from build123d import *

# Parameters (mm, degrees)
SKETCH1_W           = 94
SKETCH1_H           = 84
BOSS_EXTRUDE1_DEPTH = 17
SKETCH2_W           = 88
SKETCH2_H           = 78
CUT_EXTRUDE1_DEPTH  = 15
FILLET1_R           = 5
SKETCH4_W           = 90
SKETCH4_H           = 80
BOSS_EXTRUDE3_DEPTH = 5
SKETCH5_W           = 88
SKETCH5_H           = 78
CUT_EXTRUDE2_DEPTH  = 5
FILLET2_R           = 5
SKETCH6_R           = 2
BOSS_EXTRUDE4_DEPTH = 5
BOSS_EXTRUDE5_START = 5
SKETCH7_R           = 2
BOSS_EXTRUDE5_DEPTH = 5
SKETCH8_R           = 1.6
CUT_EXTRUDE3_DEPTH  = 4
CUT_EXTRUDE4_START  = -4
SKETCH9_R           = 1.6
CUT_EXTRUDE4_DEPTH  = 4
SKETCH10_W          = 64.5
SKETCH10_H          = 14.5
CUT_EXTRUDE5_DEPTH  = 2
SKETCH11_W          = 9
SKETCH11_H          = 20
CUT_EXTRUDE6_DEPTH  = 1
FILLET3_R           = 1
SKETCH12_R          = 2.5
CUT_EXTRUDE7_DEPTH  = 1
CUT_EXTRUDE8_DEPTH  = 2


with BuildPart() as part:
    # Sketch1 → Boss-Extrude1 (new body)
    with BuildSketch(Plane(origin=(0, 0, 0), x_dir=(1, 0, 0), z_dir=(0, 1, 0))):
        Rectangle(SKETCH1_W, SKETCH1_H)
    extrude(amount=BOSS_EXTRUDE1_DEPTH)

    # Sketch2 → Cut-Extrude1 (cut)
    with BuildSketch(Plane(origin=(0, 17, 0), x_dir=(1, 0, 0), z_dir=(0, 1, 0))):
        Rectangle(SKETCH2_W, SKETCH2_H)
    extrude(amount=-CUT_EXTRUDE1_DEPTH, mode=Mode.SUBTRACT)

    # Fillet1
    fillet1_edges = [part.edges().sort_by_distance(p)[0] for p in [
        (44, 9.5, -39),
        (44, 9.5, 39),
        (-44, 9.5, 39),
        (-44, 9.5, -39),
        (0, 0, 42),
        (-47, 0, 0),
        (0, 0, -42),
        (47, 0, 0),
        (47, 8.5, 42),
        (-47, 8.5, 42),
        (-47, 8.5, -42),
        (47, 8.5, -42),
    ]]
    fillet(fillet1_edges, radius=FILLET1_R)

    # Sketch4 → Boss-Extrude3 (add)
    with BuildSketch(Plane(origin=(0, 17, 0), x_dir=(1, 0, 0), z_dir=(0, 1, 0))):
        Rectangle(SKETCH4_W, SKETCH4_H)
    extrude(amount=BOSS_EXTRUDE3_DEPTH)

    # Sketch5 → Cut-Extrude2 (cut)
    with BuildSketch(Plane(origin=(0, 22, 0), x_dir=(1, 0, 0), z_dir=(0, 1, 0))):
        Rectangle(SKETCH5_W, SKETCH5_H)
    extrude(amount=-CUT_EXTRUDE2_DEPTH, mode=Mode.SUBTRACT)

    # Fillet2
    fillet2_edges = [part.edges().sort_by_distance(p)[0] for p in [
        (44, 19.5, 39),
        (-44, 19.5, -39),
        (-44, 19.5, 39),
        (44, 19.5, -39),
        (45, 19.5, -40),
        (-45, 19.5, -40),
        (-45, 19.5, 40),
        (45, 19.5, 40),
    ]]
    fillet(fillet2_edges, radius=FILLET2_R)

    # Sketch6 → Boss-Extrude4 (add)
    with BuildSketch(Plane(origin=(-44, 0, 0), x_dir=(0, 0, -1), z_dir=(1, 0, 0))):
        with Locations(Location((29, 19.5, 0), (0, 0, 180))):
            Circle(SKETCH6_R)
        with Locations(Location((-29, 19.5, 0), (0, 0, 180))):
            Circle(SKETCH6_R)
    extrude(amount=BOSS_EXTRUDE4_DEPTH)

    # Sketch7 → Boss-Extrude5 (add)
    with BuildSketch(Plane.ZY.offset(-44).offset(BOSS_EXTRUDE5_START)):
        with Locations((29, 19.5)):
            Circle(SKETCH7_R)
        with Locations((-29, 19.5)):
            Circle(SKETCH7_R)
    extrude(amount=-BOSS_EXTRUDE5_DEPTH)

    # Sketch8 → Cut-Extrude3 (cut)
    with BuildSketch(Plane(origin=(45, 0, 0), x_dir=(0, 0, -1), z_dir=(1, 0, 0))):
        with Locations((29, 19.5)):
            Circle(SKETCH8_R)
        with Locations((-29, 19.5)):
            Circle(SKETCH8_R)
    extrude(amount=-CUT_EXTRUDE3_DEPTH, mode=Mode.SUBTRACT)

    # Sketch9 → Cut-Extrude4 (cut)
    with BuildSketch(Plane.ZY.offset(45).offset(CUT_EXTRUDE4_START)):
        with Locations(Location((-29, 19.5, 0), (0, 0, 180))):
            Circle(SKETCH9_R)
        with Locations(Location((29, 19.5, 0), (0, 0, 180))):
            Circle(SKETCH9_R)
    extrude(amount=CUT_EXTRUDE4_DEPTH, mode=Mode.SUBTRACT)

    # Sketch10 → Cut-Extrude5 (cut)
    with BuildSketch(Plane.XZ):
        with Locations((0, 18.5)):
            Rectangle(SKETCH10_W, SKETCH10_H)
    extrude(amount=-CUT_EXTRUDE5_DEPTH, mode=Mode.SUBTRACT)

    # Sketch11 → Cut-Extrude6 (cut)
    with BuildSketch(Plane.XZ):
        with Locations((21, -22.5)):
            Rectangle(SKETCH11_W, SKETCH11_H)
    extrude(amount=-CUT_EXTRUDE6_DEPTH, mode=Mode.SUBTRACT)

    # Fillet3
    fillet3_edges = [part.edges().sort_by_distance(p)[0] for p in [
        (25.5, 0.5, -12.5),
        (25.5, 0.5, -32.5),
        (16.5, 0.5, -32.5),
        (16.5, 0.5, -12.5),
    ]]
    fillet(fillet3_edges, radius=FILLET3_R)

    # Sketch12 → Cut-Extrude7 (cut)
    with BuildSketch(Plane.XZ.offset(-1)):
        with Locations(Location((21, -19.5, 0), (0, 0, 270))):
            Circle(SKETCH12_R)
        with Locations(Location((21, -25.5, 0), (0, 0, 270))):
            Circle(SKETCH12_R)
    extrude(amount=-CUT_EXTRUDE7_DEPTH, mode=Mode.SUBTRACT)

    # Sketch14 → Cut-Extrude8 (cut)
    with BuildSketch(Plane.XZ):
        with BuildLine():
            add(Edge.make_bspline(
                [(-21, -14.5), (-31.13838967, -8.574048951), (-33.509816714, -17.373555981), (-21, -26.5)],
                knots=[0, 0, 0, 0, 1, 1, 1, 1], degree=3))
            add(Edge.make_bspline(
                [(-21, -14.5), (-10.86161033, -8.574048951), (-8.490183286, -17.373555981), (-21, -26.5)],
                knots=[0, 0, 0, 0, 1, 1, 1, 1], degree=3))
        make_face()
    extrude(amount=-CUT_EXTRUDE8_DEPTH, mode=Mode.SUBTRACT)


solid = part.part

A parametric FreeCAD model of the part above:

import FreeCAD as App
import Part
import Sketcher
from FreeCAD import Vector
Q = App.Units.Quantity


def edges_at(feature, points):
    """Names of the edges that pass closest to the given points."""
    edges = feature.Shape.Edges
    near = lambda p: min(range(len(edges)), key=lambda i: edges[i].distToShape(Part.Vertex(*p))[0])
    return sorted({f"Edge{near(p) + 1}" for p in points})


def add_polygon(sketch, points):
    """Adds a closed chain of lines whose ends are joined by coincident constraints."""
    first, n = sketch.GeometryCount, len(points)
    for a, b in zip(points, points[1:] + points[:1]):
        sketch.addGeometry(Part.LineSegment(App.Vector(*a, 0), App.Vector(*b, 0)), False)
    for i in range(n):
        sketch.addConstraint(Sketcher.Constraint("Coincident", first + i, 2, first + (i + 1) % n, 1))

doc = App.newDocument("Part")
params = doc.addObject("Spreadsheet::Sheet", "Params")
for row, (alias, value) in enumerate([
    ("sketch1_width", "94 mm"),
    ("sketch1_height", "84 mm"),
    ("pad1_length", "17 mm"),
    ("sketch2_width", "88 mm"),
    ("sketch2_height", "78 mm"),
    ("pocket1_length", "15 mm"),
    ("fillet_radius", "5 mm"),
    ("sketch3_width", "90 mm"),
    ("sketch3_height", "80 mm"),
    ("pad2_length", "5 mm"),
    ("sketch4_width", "88 mm"),
    ("sketch4_height", "78 mm"),
    ("pocket2_length", "5 mm"),
    ("fillet2_radius", "5 mm"),
    ("sketch5_diameter", "4 mm"),
    ("pad3_length", "5 mm"),
    ("sketch6_diameter", "4 mm"),
    ("pad4_length", "5 mm"),
    ("sketch7_diameter", "3.2 mm"),
    ("pocket3_length", "4 mm"),
    ("sketch8_diameter", "3.2 mm"),
    ("pocket4_length", "4 mm"),
    ("sketch9_width", "64.5 mm"),
    ("sketch9_height", "14.5 mm"),
    ("pocket5_length", "2 mm"),
    ("sketch10_width", "9 mm"),
    ("sketch10_height", "20 mm"),
    ("pocket6_length", "1 mm"),
    ("fillet3_radius", "1 mm"),
    ("sketch11_diameter", "5 mm"),
    ("pocket7_length", "1 mm"),
    ("pocket8_length", "2 mm"),
], start=1):
    params.set(f"A{row}", alias)
    params.set(f"B{row}", "=" + value)
    params.setAlias(f"B{row}", alias)

body = doc.addObject("PartDesign::Body", "Body")

sketch1 = body.newObject("Sketcher::SketchObject", "Sketch")
sketch1.AttachmentSupport = (doc.getObject("XZ_Plane"), [""])
sketch1.MapMode = "FlatFace"
add_polygon(sketch1, [(-47, -42), (-47, 42), (47, 42), (47, -42)])
sketch1.addConstraint(Sketcher.Constraint("Vertical", 0))
sketch1.addConstraint(Sketcher.Constraint("Horizontal", 1))
sketch1.addConstraint(Sketcher.Constraint("Vertical", 2))
sketch1.addConstraint(Sketcher.Constraint("Horizontal", 3))
sketch1.addConstraint(Sketcher.Constraint("Symmetric", 0, 2, 2, 2, -1, 1))
sketch1.addConstraint(Sketcher.Constraint("DistanceX", 1, 1, 1, 2, Q("94 mm")))
sketch1.addConstraint(Sketcher.Constraint("DistanceY", 0, 1, 0, 2, Q("84 mm")))
sketch1.setExpression("Constraints[9]", "Params.sketch1_width")
sketch1.setExpression("Constraints[10]", "Params.sketch1_height")
pad1 = body.newObject("PartDesign::Pad", "Pad")
pad1.Profile = sketch1
pad1.setExpression("Length", "Params.pad1_length")
pad1.Reversed = True

sketch2 = body.newObject("Sketcher::SketchObject", "Sketch001")
sketch2.AttachmentSupport = (doc.getObject("XZ_Plane"), [""])
sketch2.MapMode = "FlatFace"
sketch2.AttachmentOffset = App.Placement(Vector(0, 0, -17), App.Rotation())
add_polygon(sketch2, [(-44, -39), (-44, 39), (44, 39), (44, -39)])
sketch2.addConstraint(Sketcher.Constraint("Vertical", 0))
sketch2.addConstraint(Sketcher.Constraint("Horizontal", 1))
sketch2.addConstraint(Sketcher.Constraint("Vertical", 2))
sketch2.addConstraint(Sketcher.Constraint("Horizontal", 3))
sketch2.addConstraint(Sketcher.Constraint("Symmetric", 0, 2, 2, 2, -1, 1))
sketch2.addConstraint(Sketcher.Constraint("DistanceX", 1, 1, 1, 2, Q("88 mm")))
sketch2.addConstraint(Sketcher.Constraint("DistanceY", 0, 1, 0, 2, Q("78 mm")))
sketch2.setExpression("Constraints[9]", "Params.sketch2_width")
sketch2.setExpression("Constraints[10]", "Params.sketch2_height")
pocket1 = body.newObject("PartDesign::Pocket", "Pocket")
pocket1.Profile = sketch2
pocket1.setExpression("Length", "Params.pocket1_length")
pocket1.Reversed = True
doc.recompute()

fillet = body.newObject("PartDesign::Fillet", "Fillet")
fillet.Base = (pocket1, edges_at(pocket1, [
    (44, 9.5, -39),
    (44, 9.5, 39),
    (-44, 9.5, 39),
    (-44, 9.5, -39),
    (0, 0, 42),
    (-47, 0, 0),
    (0, 0, -42),
    (47, 0, 0),
    (47, 8.5, 42),
    (-47, 8.5, 42),
    (-47, 8.5, -42),
    (47, 8.5, -42),
]))
fillet.setExpression("Radius", "Params.fillet_radius")

sketch3 = body.newObject("Sketcher::SketchObject", "Sketch002")
sketch3.AttachmentSupport = (doc.getObject("XZ_Plane"), [""])
sketch3.MapMode = "FlatFace"
sketch3.AttachmentOffset = App.Placement(Vector(0, 0, -17), App.Rotation())
add_polygon(sketch3, [(-45, -40), (-45, 40), (45, 40), (45, -40)])
sketch3.addConstraint(Sketcher.Constraint("Vertical", 0))
sketch3.addConstraint(Sketcher.Constraint("Horizontal", 1))
sketch3.addConstraint(Sketcher.Constraint("Vertical", 2))
sketch3.addConstraint(Sketcher.Constraint("Horizontal", 3))
sketch3.addConstraint(Sketcher.Constraint("Symmetric", 0, 2, 2, 2, -1, 1))
sketch3.addConstraint(Sketcher.Constraint("DistanceX", 1, 1, 1, 2, Q("90 mm")))
sketch3.addConstraint(Sketcher.Constraint("DistanceY", 0, 1, 0, 2, Q("80 mm")))
sketch3.setExpression("Constraints[9]", "Params.sketch3_width")
sketch3.setExpression("Constraints[10]", "Params.sketch3_height")
pad2 = body.newObject("PartDesign::Pad", "Pad001")
pad2.Profile = sketch3
pad2.setExpression("Length", "Params.pad2_length")
pad2.Reversed = True

sketch4 = body.newObject("Sketcher::SketchObject", "Sketch003")
sketch4.AttachmentSupport = (doc.getObject("XZ_Plane"), [""])
sketch4.MapMode = "FlatFace"
sketch4.AttachmentOffset = App.Placement(Vector(0, 0, -22), App.Rotation())
add_polygon(sketch4, [(-44, -39), (-44, 39), (44, 39), (44, -39)])
sketch4.addConstraint(Sketcher.Constraint("Vertical", 0))
sketch4.addConstraint(Sketcher.Constraint("Horizontal", 1))
sketch4.addConstraint(Sketcher.Constraint("Vertical", 2))
sketch4.addConstraint(Sketcher.Constraint("Horizontal", 3))
sketch4.addConstraint(Sketcher.Constraint("Symmetric", 0, 2, 2, 2, -1, 1))
sketch4.addConstraint(Sketcher.Constraint("DistanceX", 1, 1, 1, 2, Q("88 mm")))
sketch4.addConstraint(Sketcher.Constraint("DistanceY", 0, 1, 0, 2, Q("78 mm")))
sketch4.setExpression("Constraints[9]", "Params.sketch4_width")
sketch4.setExpression("Constraints[10]", "Params.sketch4_height")
pocket2 = body.newObject("PartDesign::Pocket", "Pocket001")
pocket2.Profile = sketch4
pocket2.setExpression("Length", "Params.pocket2_length")
pocket2.Reversed = True
doc.recompute()

fillet2 = body.newObject("PartDesign::Fillet", "Fillet001")
fillet2.Base = (pocket2, edges_at(pocket2, [
    (44, 19.5, 39),
    (-44, 19.5, -39),
    (-44, 19.5, 39),
    (44, 19.5, -39),
    (45, 19.5, -40),
    (-45, 19.5, -40),
    (-45, 19.5, 40),
    (45, 19.5, 40),
]))
fillet2.setExpression("Radius", "Params.fillet2_radius")

sketch5 = body.newObject("Sketcher::SketchObject", "Sketch004")
sketch5.AttachmentSupport = (doc.getObject("YZ_Plane"), [""])
sketch5.MapMode = "FlatFace"
sketch5.AttachmentOffset = App.Placement(Vector(0, 0, -44), App.Rotation())
sketch5.addGeometry(Part.Circle(Vector(19.5, -29, 0), Vector(0, 0, 1), 2), False)
sketch5.addGeometry(Part.Circle(Vector(19.5, 29, 0), Vector(0, 0, 1), 2), False)
sketch5.addConstraint(Sketcher.Constraint("Equal", 0, 1))
sketch5.addConstraint(Sketcher.Constraint("Symmetric", 0, 3, 1, 3, -1))
sketch5.addConstraint(Sketcher.Constraint("Diameter", 0, Q("4 mm")))
sketch5.addConstraint(Sketcher.Constraint("DistanceY", 0, 3, -1, 1, Q("29 mm")))
sketch5.addConstraint(Sketcher.Constraint("DistanceX", -1, 1, 0, 3, Q("19.5 mm")))
sketch5.setExpression("Constraints[2]", "Params.sketch5_diameter")
pad3 = body.newObject("PartDesign::Pad", "Pad002")
pad3.Profile = sketch5
pad3.setExpression("Length", "Params.pad3_length")

sketch6 = body.newObject("Sketcher::SketchObject", "Sketch005")
sketch6.AttachmentSupport = (doc.getObject("YZ_Plane"), [""])
sketch6.MapMode = "FlatFace"
sketch6.AttachmentOffset = App.Placement(Vector(0, 0, 39), App.Rotation())
sketch6.addGeometry(Part.Circle(Vector(19.5, 29, 0), Vector(0, 0, 1), 2), False)
sketch6.addGeometry(Part.Circle(Vector(19.5, -29, 0), Vector(0, 0, 1), 2), False)
sketch6.addConstraint(Sketcher.Constraint("Equal", 0, 1))
sketch6.addConstraint(Sketcher.Constraint("Symmetric", 0, 3, 1, 3, -1))
sketch6.addConstraint(Sketcher.Constraint("Diameter", 0, Q("4 mm")))
sketch6.addConstraint(Sketcher.Constraint("DistanceY", -1, 1, 0, 3, Q("29 mm")))
sketch6.addConstraint(Sketcher.Constraint("DistanceX", -1, 1, 0, 3, Q("19.5 mm")))
sketch6.setExpression("Constraints[2]", "Params.sketch6_diameter")
pad4 = body.newObject("PartDesign::Pad", "Pad003")
pad4.Profile = sketch6
pad4.setExpression("Length", "Params.pad4_length")

sketch7 = body.newObject("Sketcher::SketchObject", "Sketch006")
sketch7.AttachmentSupport = (doc.getObject("YZ_Plane"), [""])
sketch7.MapMode = "FlatFace"
sketch7.AttachmentOffset = App.Placement(Vector(0, 0, 45), App.Rotation())
sketch7.addGeometry(Part.Circle(Vector(19.5, -29, 0), Vector(0, 0, 1), 1.6), False)
sketch7.addGeometry(Part.Circle(Vector(19.5, 29, 0), Vector(0, 0, 1), 1.6), False)
sketch7.addConstraint(Sketcher.Constraint("Equal", 0, 1))
sketch7.addConstraint(Sketcher.Constraint("Symmetric", 0, 3, 1, 3, -1))
sketch7.addConstraint(Sketcher.Constraint("Diameter", 0, Q("3.2 mm")))
sketch7.addConstraint(Sketcher.Constraint("DistanceY", 0, 3, -1, 1, Q("29 mm")))
sketch7.addConstraint(Sketcher.Constraint("DistanceX", -1, 1, 0, 3, Q("19.5 mm")))
sketch7.setExpression("Constraints[2]", "Params.sketch7_diameter")
pocket3 = body.newObject("PartDesign::Pocket", "Pocket002")
pocket3.Profile = sketch7
pocket3.setExpression("Length", "Params.pocket3_length")

sketch8 = body.newObject("Sketcher::SketchObject", "Sketch007")
sketch8.AttachmentSupport = (doc.getObject("YZ_Plane"), [""])
sketch8.MapMode = "FlatFace"
sketch8.AttachmentOffset = App.Placement(Vector(0, 0, -41), App.Rotation())
sketch8.addGeometry(Part.Circle(Vector(19.5, -29, 0), Vector(0, 0, 1), 1.6), False)
sketch8.addGeometry(Part.Circle(Vector(19.5, 29, 0), Vector(0, 0, 1), 1.6), False)
sketch8.addConstraint(Sketcher.Constraint("Equal", 0, 1))
sketch8.addConstraint(Sketcher.Constraint("Symmetric", 0, 3, 1, 3, -1))
sketch8.addConstraint(Sketcher.Constraint("Diameter", 0, Q("3.2 mm")))
sketch8.addConstraint(Sketcher.Constraint("DistanceY", 0, 3, -1, 1, Q("29 mm")))
sketch8.addConstraint(Sketcher.Constraint("DistanceX", -1, 1, 0, 3, Q("19.5 mm")))
sketch8.setExpression("Constraints[2]", "Params.sketch8_diameter")
pocket4 = body.newObject("PartDesign::Pocket", "Pocket003")
pocket4.Profile = sketch8
pocket4.setExpression("Length", "Params.pocket4_length")

sketch9 = body.newObject("Sketcher::SketchObject", "Sketch008")
sketch9.AttachmentSupport = (doc.getObject("XZ_Plane"), [""])
sketch9.MapMode = "FlatFace"
add_polygon(sketch9, [(-32, 26), (-32, 11), (32, 11), (32, 26)])
sketch9.addConstraint(Sketcher.Constraint("Vertical", 0))
sketch9.addConstraint(Sketcher.Constraint("Horizontal", 1))
sketch9.addConstraint(Sketcher.Constraint("Vertical", 2))
sketch9.addConstraint(Sketcher.Constraint("Horizontal", 3))
sketch9.addConstraint(Sketcher.Constraint("DistanceX", 1, 1, 1, 2, Q("64.5 mm")))
sketch9.addConstraint(Sketcher.Constraint("DistanceY", 0, 2, 0, 1, Q("14.5 mm")))
sketch9.addConstraint(Sketcher.Constraint("DistanceX", 0, 2, -1, 1, Q("32.25 mm")))
sketch9.addConstraint(Sketcher.Constraint("DistanceY", -1, 1, 0, 2, Q("11.25 mm")))
sketch9.setExpression("Constraints[8]", "Params.sketch9_width")
sketch9.setExpression("Constraints[9]", "Params.sketch9_height")
pocket5 = body.newObject("PartDesign::Pocket", "Pocket004")
pocket5.Profile = sketch9
pocket5.setExpression("Length", "Params.pocket5_length")

sketch10 = body.newObject("Sketcher::SketchObject", "Sketch009")
sketch10.AttachmentSupport = (doc.getObject("XZ_Plane"), [""])
sketch10.MapMode = "FlatFace"
add_polygon(sketch10, [(16, -12), (16, -32), (26, -32), (26, -12)])
sketch10.addConstraint(Sketcher.Constraint("Vertical", 0))
sketch10.addConstraint(Sketcher.Constraint("Horizontal", 1))
sketch10.addConstraint(Sketcher.Constraint("Vertical", 2))
sketch10.addConstraint(Sketcher.Constraint("Horizontal", 3))
sketch10.addConstraint(Sketcher.Constraint("DistanceX", 1, 1, 1, 2, Q("9 mm")))
sketch10.addConstraint(Sketcher.Constraint("DistanceY", 0, 2, 0, 1, Q("20 mm")))
sketch10.addConstraint(Sketcher.Constraint("DistanceX", -1, 1, 0, 2, Q("16.5 mm")))
sketch10.addConstraint(Sketcher.Constraint("DistanceY", 0, 2, -1, 1, Q("32.5 mm")))
sketch10.setExpression("Constraints[8]", "Params.sketch10_width")
sketch10.setExpression("Constraints[9]", "Params.sketch10_height")
pocket6 = body.newObject("PartDesign::Pocket", "Pocket005")
pocket6.Profile = sketch10
pocket6.setExpression("Length", "Params.pocket6_length")
doc.recompute()

fillet3 = body.newObject("PartDesign::Fillet", "Fillet002")
fillet3.Base = (pocket6, edges_at(pocket6, [
    (25.5, 0.5, -12.5),
    (25.5, 0.5, -32.5),
    (16.5, 0.5, -32.5),
    (16.5, 0.5, -12.5),
]))
fillet3.setExpression("Radius", "Params.fillet3_radius")

sketch11 = body.newObject("Sketcher::SketchObject", "Sketch010")
sketch11.AttachmentSupport = (doc.getObject("XZ_Plane"), [""])
sketch11.MapMode = "FlatFace"
sketch11.AttachmentOffset = App.Placement(Vector(0, 0, -1), App.Rotation())
sketch11.addGeometry(Part.Circle(Vector(21, -19.5, 0), Vector(0, 0, 1), 2.5), False)
sketch11.addGeometry(Part.Circle(Vector(21, -25.5, 0), Vector(0, 0, 1), 2.5), False)
sketch11.addConstraint(Sketcher.Constraint("Equal", 0, 1))
sketch11.addConstraint(Sketcher.Constraint("Vertical", 0, 3, 1, 3))
sketch11.addConstraint(Sketcher.Constraint("Diameter", 0, Q("5 mm")))
sketch11.addConstraint(Sketcher.Constraint("DistanceX", -1, 1, 0, 3, Q("21 mm")))
sketch11.addConstraint(Sketcher.Constraint("DistanceY", 1, 3, 0, 3, Q("6 mm")))
sketch11.addConstraint(Sketcher.Constraint("DistanceY", 0, 3, -1, 1, Q("19.5 mm")))
sketch11.setExpression("Constraints[2]", "Params.sketch11_diameter")
pocket7 = body.newObject("PartDesign::Pocket", "Pocket006")
pocket7.Profile = sketch11
pocket7.setExpression("Length", "Params.pocket7_length")

sketch12 = body.newObject("Sketcher::SketchObject", "Sketch011")
sketch12.AttachmentSupport = (doc.getObject("XZ_Plane"), [""])
sketch12.MapMode = "FlatFace"
sketch12.addGeometry(Part.BSplineCurve([Vector(-21, -14.5, 0), Vector(-31.13839, -8.574049, 0), Vector(-33.509817, -17.373556, 0), Vector(-21, -26.5, 0)], [4, 4], [0, 1], False, 3, [1, 1, 1, 1], False), False)
sketch12.addGeometry(Part.BSplineCurve([Vector(-21, -14.5, 0), Vector(-10.86161, -8.574049, 0), Vector(-8.490183, -17.373556, 0), Vector(-21, -26.5, 0)], [4, 4], [0, 1], False, 3, [1, 1, 1, 1], False), False)
sketch12.addConstraint(Sketcher.Constraint("Block", 0))
sketch12.addConstraint(Sketcher.Constraint("Block", 1))
pocket8 = body.newObject("PartDesign::Pocket", "Pocket007")
pocket8.Profile = sketch12
pocket8.setExpression("Length", "Params.pocket8_length")

doc.recompute()
